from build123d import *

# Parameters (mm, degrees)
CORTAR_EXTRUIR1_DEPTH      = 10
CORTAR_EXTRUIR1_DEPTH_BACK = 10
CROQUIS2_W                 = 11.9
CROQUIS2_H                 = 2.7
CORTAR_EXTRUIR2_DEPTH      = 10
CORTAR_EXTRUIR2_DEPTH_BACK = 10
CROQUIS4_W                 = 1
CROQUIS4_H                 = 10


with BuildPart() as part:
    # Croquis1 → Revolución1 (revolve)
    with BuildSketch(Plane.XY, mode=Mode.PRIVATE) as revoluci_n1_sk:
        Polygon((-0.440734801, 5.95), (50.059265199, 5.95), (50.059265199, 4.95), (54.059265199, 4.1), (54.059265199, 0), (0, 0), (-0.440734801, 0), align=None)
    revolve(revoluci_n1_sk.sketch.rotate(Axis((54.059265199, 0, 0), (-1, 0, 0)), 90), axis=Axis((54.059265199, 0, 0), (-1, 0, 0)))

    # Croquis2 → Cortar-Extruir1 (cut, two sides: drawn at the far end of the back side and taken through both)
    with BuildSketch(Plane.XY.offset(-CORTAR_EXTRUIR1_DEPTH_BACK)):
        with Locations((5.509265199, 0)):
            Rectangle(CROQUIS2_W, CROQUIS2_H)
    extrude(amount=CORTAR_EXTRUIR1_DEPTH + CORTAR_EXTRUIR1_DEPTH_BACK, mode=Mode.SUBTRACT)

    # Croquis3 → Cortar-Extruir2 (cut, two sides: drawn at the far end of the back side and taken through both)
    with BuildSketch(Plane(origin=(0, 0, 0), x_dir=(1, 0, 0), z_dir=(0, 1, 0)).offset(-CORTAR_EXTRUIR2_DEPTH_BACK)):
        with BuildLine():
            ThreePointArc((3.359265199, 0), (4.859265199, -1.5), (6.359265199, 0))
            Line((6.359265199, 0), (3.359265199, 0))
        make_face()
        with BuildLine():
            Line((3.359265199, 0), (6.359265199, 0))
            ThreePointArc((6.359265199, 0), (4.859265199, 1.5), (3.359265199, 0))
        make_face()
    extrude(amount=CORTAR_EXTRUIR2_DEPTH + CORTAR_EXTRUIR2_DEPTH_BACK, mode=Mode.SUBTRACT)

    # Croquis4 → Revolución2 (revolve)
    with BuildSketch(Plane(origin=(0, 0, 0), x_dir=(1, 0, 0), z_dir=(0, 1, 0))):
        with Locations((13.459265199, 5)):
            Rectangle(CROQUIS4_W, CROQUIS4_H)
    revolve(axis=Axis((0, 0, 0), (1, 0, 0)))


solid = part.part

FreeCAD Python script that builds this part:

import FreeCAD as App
import Part
import Sketcher
Q = App.Units.Quantity


def add_polygon(sketch, points):
    """Adds a closed chain of lines whose ends are joined by coincident constraints."""
    first, n = sketch.GeometryCount, len(points)
    for a, b in zip(points, points[1:] + points[:1]):
        sketch.addGeometry(Part.LineSegment(App.Vector(*a, 0), App.Vector(*b, 0)), False)
    for i in range(n):
        sketch.addConstraint(Sketcher.Constraint("Coincident", first + i, 2, first + (i + 1) % n, 1))

doc = App.newDocument("Part")
body = doc.addObject("PartDesign::Body", "Body")

# Sketch on XY plane
sketch1 = body.newObject("Sketcher::SketchObject", "Sketch")
sketch1.AttachmentSupport = (doc.getObject("XY_Plane"), [""])
sketch1.MapMode = "FlatFace"
add_polygon(sketch1, [(50.1, 6), (-0.4, 6), (-0.4, 0), (54.1, 0), (54.1, 4.1), (50.1, 5)])  # lines 0-5
sketch1.addConstraint(Sketcher.Constraint("Horizontal", 0))
sketch1.addConstraint(Sketcher.Constraint("Vertical", 1))
sketch1.addConstraint(Sketcher.Constraint("Horizontal", 2))
sketch1.addConstraint(Sketcher.Constraint("Vertical", 3))
sketch1.addConstraint(Sketcher.Constraint("Vertical", 5))
sketch1.addConstraint(Sketcher.Constraint("PointOnObject", 1, 2, -1))
sketch1.addConstraint(Sketcher.Constraint("DistanceY", 5, 1, 5, 2, Q("1 mm")))
sketch1.addConstraint(Sketcher.Constraint("DistanceX", 0, 2, 0, 1, Q("50.5 mm")))
sketch1.addConstraint(Sketcher.Constraint("DistanceX", 2, 1, 2, 2, Q("54.5 mm")))
sketch1.addConstraint(Sketcher.Constraint("DistanceY", 3, 1, 3, 2, Q("4.1 mm")))
sketch1.addConstraint(Sketcher.Constraint("DistanceY", 1, 2, 1, 1, Q("5.95 mm")))
sketch1.addConstraint(Sketcher.Constraint("DistanceX", 0, 2, -1, 1, Q("0.440735 mm")))
revolution = body.newObject("PartDesign::Revolution", "Revolution")
revolution.Profile = sketch1
revolution.ReferenceAxis = (sketch1, ["H_Axis"])
revolution.Angle = 360

# Sketch on XY plane
sketch2 = body.newObject("Sketcher::SketchObject", "Sketch001")
sketch2.AttachmentSupport = (doc.getObject("XY_Plane"), [""])
sketch2.MapMode = "FlatFace"
add_polygon(sketch2, [(-0.4, 1.4), (-0.4, -1.4), (11.5, -1.4), (11.5, 1.4)])  # lines 0-3
sketch2.addConstraint(Sketcher.Constraint("Vertical", 0))
sketch2.addConstraint(Sketcher.Constraint("Horizontal", 1))
sketch2.addConstraint(Sketcher.Constraint("Vertical", 2))
sketch2.addConstraint(Sketcher.Constraint("Horizontal", 3))
sketch2.addConstraint(Sketcher.Constraint("DistanceX", 1, 1, 1, 2, Q("11.9 mm")))
sketch2.addConstraint(Sketcher.Constraint("DistanceY", 0, 2, 0, 1, Q("2.7 mm")))
sketch2.addConstraint(Sketcher.Constraint("DistanceY", 0, 2, -1, 1, Q("1.35 mm")))
sketch2.addConstraint(Sketcher.Constraint("DistanceX", 0, 2, -1, 1, Q("0.440735 mm")))
pocket1 = body.newObject("PartDesign::Pocket", "Pocket")
pocket1.Profile = sketch2
pocket1.Type = "ThroughAll"
pocket1.Midplane = True

# Sketch on XZ plane
sketch3 = body.newObject("Sketcher::SketchObject", "Sketch002")
sketch3.AttachmentSupport = (doc.getObject("XZ_Plane"), [""])
sketch3.MapMode = "FlatFace"
sketch3.addGeometry(Part.Circle(App.Vector(4.9, 0, 0), App.Vector(0, 0, 1), 1.5), False)
sketch3.addConstraint(Sketcher.Constraint("PointOnObject", 0, 3, -1))
sketch3.addConstraint(Sketcher.Constraint("Diameter", 0, Q("3 mm")))
sketch3.addConstraint(Sketcher.Constraint("DistanceX", -1, 1, 0, 3, Q("4.859265 mm")))
pocket2 = body.newObject("PartDesign::Pocket", "Pocket001")
pocket2.Profile = sketch3
pocket2.Type = "ThroughAll"
pocket2.Midplane = True

# Sketch on XZ plane
sketch4 = body.newObject("Sketcher::SketchObject", "Sketch003")
sketch4.AttachmentSupport = (doc.getObject("XZ_Plane"), [""])
sketch4.MapMode = "FlatFace"
add_polygon(sketch4, [(13, -10), (13, 0), (14, 0), (14, -10)])  # lines 0-3
sketch4.addConstraint(Sketcher.Constraint("Vertical", 0))
sketch4.addConstraint(Sketcher.Constraint("Horizontal", 1))
sketch4.addConstraint(Sketcher.Constraint("Vertical", 2))
sketch4.addConstraint(Sketcher.Constraint("Horizontal", 3))
sketch4.addConstraint(Sketcher.Constraint("PointOnObject", 0, 2, -1))
sketch4.addConstraint(Sketcher.Constraint("DistanceX", 1, 1, 1, 2, Q("1 mm")))
sketch4.addConstraint(Sketcher.Constraint("DistanceY", 0, 1, 0, 2, Q("10 mm")))
sketch4.addConstraint(Sketcher.Constraint("DistanceX", -1, 1, 0, 2, Q("12.959265 mm")))
revolution2 = body.newObject("PartDesign::Revolution", "Revolution001")
revolution2.Profile = sketch4
revolution2.ReferenceAxis = (sketch4, ["H_Axis"])
revolution2.Angle = 360

doc.recompute()
